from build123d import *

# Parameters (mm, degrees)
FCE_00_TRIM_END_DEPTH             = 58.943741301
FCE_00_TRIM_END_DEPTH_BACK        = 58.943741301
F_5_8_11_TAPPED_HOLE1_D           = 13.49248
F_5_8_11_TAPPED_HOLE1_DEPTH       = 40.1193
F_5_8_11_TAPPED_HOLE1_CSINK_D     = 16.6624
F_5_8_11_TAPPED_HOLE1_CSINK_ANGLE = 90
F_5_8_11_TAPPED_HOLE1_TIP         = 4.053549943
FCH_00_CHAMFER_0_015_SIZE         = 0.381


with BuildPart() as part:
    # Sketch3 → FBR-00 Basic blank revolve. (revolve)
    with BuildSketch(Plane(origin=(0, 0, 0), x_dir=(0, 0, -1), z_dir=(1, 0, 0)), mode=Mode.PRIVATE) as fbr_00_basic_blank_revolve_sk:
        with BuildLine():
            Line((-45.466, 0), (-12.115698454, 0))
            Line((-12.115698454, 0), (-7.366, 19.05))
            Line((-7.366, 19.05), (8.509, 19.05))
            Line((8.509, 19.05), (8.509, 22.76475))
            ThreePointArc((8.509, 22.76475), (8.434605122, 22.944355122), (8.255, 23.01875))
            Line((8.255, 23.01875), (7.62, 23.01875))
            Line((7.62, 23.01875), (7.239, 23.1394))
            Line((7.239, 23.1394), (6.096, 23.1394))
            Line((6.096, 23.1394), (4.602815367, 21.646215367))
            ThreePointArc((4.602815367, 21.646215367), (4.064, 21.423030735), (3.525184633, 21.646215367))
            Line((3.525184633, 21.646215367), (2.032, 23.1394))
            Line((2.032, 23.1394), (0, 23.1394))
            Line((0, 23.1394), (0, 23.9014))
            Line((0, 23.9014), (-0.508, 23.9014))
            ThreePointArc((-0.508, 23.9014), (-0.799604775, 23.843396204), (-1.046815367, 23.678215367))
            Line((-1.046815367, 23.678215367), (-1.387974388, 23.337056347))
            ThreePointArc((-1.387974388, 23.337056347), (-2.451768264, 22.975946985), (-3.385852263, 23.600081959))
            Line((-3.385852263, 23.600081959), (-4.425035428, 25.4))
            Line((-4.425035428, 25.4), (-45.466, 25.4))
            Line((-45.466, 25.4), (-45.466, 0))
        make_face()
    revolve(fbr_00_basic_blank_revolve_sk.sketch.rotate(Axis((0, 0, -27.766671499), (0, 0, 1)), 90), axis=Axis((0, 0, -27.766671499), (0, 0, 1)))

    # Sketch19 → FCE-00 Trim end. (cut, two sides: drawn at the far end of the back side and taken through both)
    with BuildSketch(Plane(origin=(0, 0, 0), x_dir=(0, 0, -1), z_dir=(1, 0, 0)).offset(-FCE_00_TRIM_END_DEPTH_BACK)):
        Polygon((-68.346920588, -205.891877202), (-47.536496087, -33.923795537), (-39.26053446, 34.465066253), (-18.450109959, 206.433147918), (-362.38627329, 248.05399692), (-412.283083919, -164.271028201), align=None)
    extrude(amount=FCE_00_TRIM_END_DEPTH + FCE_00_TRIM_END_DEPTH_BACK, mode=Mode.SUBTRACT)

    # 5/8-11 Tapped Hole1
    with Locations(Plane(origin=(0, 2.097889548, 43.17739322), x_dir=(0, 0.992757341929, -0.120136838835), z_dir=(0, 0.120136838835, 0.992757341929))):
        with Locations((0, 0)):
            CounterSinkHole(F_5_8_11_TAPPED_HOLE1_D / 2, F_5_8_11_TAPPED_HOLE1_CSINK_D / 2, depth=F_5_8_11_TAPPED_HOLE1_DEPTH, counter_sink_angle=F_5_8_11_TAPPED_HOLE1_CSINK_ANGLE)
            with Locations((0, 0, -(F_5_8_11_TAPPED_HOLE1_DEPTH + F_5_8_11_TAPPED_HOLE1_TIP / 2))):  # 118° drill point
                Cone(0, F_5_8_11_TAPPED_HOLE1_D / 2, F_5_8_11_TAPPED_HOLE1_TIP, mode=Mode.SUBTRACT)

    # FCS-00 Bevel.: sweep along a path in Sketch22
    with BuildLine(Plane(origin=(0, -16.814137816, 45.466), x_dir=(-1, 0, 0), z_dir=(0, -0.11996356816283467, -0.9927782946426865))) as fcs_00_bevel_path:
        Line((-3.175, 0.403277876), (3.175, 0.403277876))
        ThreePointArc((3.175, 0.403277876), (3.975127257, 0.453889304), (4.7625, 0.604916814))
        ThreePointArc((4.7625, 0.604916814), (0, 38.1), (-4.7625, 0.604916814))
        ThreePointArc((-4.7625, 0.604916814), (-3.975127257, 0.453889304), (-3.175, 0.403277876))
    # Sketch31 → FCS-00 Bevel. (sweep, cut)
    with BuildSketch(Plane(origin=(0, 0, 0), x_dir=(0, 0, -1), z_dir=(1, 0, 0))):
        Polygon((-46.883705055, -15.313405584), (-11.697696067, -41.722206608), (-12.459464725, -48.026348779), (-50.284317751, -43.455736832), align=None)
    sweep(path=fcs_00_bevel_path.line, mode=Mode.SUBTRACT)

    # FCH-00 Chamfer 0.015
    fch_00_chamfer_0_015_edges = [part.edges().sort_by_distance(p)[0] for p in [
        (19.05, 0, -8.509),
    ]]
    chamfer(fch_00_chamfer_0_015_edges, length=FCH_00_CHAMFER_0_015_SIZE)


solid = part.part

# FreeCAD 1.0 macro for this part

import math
import FreeCAD as App
import Part
import Sketcher

V = App.Vector
Q = App.Units.Quantity


def edges_at(feature, points):
    """Names of the edges that pass closest to the given points."""
    edges = feature.Shape.Edges
    near = lambda p: min(range(len(edges)), key=lambda i: edges[i].distToShape(Part.Vertex(*p))[0])
    return sorted({f"Edge{near(p) + 1}" for p in points})

doc = App.newDocument("Part")
body = doc.addObject("PartDesign::Body", "Body")

sketch1 = body.newObject("Sketcher::SketchObject", "Sketch")
sketch1.AttachmentSupport = (doc.getObject("YZ_Plane"), [""])
sketch1.MapMode = "FlatFace"
sketch1.addGeometry(Part.LineSegment(V(0, 45.466, 0), V(0, 12.115698, 0)), False)
sketch1.addGeometry(Part.LineSegment(V(0, 12.115698, 0), V(19.05, 7.366, 0)), False)
sketch1.addGeometry(Part.LineSegment(V(19.05, 7.366, 0), V(19.05, -8.509, 0)), False)
sketch1.addGeometry(Part.LineSegment(V(19.05, -8.509, 0), V(22.76475, -8.509, 0)), False)
sketch1.addGeometry(Part.ArcOfCircle(Part.Circle(V(22.76475, -8.255, 0), V(0, 0, 1), 0.254), math.radians(-90), math.radians(0)), False)
sketch1.addGeometry(Part.LineSegment(V(23.01875, -8.255, 0), V(23.01875, -7.62, 0)), False)
sketch1.addGeometry(Part.LineSegment(V(23.01875, -7.62, 0), V(23.1394, -7.239, 0)), False)
sketch1.addGeometry(Part.LineSegment(V(23.1394, -7.239, 0), V(23.1394, -6.096, 0)), False)
sketch1.addGeometry(Part.LineSegment(V(23.1394, -6.096, 0), V(21.646215, -4.602815, 0)), False)
sketch1.addGeometry(Part.ArcOfCircle(Part.Circle(V(22.185031, -4.064, 0), V(0, 0, 1), 0.762), math.radians(135), math.radians(225)), False)
sketch1.addGeometry(Part.LineSegment(V(21.646215, -3.525185, 0), V(23.1394, -2.032, 0)), False)
sketch1.addGeometry(Part.LineSegment(V(23.1394, -2.032, 0), V(23.1394, 0, 0)), False)
sketch1.addGeometry(Part.LineSegment(V(23.1394, 0, 0), V(23.9014, 0, 0)), False)
sketch1.addGeometry(Part.LineSegment(V(23.9014, 0, 0), V(23.9014, 0.508, 0)), False)
sketch1.addGeometry(Part.ArcOfCircle(Part.Circle(V(23.1394, 0.508, 0), V(0, 0, 1), 0.762), math.radians(0), math.radians(45)), False)
sketch1.addGeometry(Part.LineSegment(V(23.678215, 1.046815, 0), V(23.337056, 1.387974, 0)), False)
sketch1.addGeometry(Part.ArcOfCircle(Part.Circle(V(24.235082, 2.286, 0), V(0, 0, 1), 1.27), math.radians(120), math.radians(225)), False)
sketch1.addGeometry(Part.LineSegment(V(23.600082, 3.385852, 0), V(25.4, 4.425035, 0)), False)
sketch1.addGeometry(Part.LineSegment(V(25.4, 4.425035, 0), V(25.4, 45.466, 0)), False)
sketch1.addGeometry(Part.LineSegment(V(25.4, 45.466, 0), V(0, 45.466, 0)), False)
sketch1.addConstraint(Sketcher.Constraint("Coincident", 0, 2, 1, 1))
sketch1.addConstraint(Sketcher.Constraint("Coincident", 1, 2, 2, 1))
sketch1.addConstraint(Sketcher.Constraint("Coincident", 2, 2, 3, 1))
sketch1.addConstraint(Sketcher.Constraint("Tangent", 3, 2, 4, 1))
sketch1.addConstraint(Sketcher.Constraint("Tangent", 4, 2, 5, 1))
sketch1.addConstraint(Sketcher.Constraint("Coincident", 5, 2, 6, 1))
sketch1.addConstraint(Sketcher.Constraint("Coincident", 6, 2, 7, 1))
sketch1.addConstraint(Sketcher.Constraint("Coincident", 7, 2, 8, 1))
sketch1.addConstraint(Sketcher.Constraint("Tangent", 8, 2, 9, 2))
sketch1.addConstraint(Sketcher.Constraint("Tangent", 9, 1, 10, 1))
sketch1.addConstraint(Sketcher.Constraint("Coincident", 10, 2, 11, 1))
sketch1.addConstraint(Sketcher.Constraint("Coincident", 11, 2, 12, 1))
sketch1.addConstraint(Sketcher.Constraint("Coincident", 12, 2, 13, 1))
sketch1.addConstraint(Sketcher.Constraint("Tangent", 13, 2, 14, 1))
sketch1.addConstraint(Sketcher.Constraint("Tangent", 14, 2, 15, 1))
sketch1.addConstraint(Sketcher.Constraint("Tangent", 15, 2, 16, 2))
sketch1.addConstraint(Sketcher.Constraint("Tangent", 16, 1, 17, 1))
sketch1.addConstraint(Sketcher.Constraint("Coincident", 17, 2, 18, 1))
sketch1.addConstraint(Sketcher.Constraint("Coincident", 18, 2, 19, 1))
sketch1.addConstraint(Sketcher.Constraint("Coincident", 19, 2, 0, 1))
sketch1.addConstraint(Sketcher.Constraint("Vertical", 0))
sketch1.addConstraint(Sketcher.Constraint("Vertical", 2))
sketch1.addConstraint(Sketcher.Constraint("Horizontal", 3))
sketch1.addConstraint(Sketcher.Constraint("Vertical", 5))
sketch1.addConstraint(Sketcher.Constraint("Vertical", 7))
sketch1.addConstraint(Sketcher.Constraint("Vertical", 11))
sketch1.addConstraint(Sketcher.Constraint("Horizontal", 12))
sketch1.addConstraint(Sketcher.Constraint("Vertical", 13))
sketch1.addConstraint(Sketcher.Constraint("Vertical", 18))
sketch1.addConstraint(Sketcher.Constraint("Horizontal", 19))
sketch1.addConstraint(Sketcher.Constraint("Equal", 9, 14))
sketch1.addConstraint(Sketcher.Constraint("PointOnObject", 0, 2, -2))
sketch1.addConstraint(Sketcher.Constraint("PointOnObject", 11, 2, -1))
sketch1.addConstraint(Sketcher.Constraint("Perpendicular", 8, 10))
sketch1.addConstraint(Sketcher.Constraint("Perpendicular", 10, 15))
sketch1.addConstraint(Sketcher.Constraint("Vertical", 14, 3, 6, 2))
sketch1.addConstraint(Sketcher.Constraint("Vertical", 8, 2, 9, 1))
sketch1.addConstraint(Sketcher.Constraint("Vertical", 7, 2, 10, 2))
sketch1.addConstraint(Sketcher.Constraint("DistanceX", 19, 2, 19, 1, Q("1 in")))
sketch1.addConstraint(Sketcher.Constraint("Radius", 4, Q("0.01 in")))
sketch1.addConstraint(Sketcher.Constraint("Radius", 9, Q("0.03 in")))
sketch1.addConstraint(Sketcher.Constraint("Radius", 16, Q("0.05 in")))
sketch1.addConstraint(Sketcher.Constraint("Angle", 1, Q("-14 deg")))
sketch1.addConstraint(Sketcher.Constraint("Angle", 17, Q("30 deg")))
sketch1.addConstraint(Sketcher.Constraint("DistanceY", 11, 1, 11, 2, Q("0.08 in")))
sketch1.addConstraint(Sketcher.Constraint("DistanceY", 13, 1, 13, 2, Q("0.02 in")))
sketch1.addConstraint(Sketcher.Constraint("DistanceY", 5, 2, -1, 1, Q("0.3 in")))
sketch1.addConstraint(Sketcher.Constraint("DistanceY", 16, 3, 1, 2, Q("0.2 in")))
sketch1.addConstraint(Sketcher.Constraint("DistanceY", 1, 2, 18, 2, Q("1.5 in")))
sketch1.addConstraint(Sketcher.Constraint("DistanceY", 2, 2, 2, 1, Q("0.625 in")))
sketch1.addConstraint(Sketcher.Constraint("DistanceY", 5, 1, 5, 2, Q("0.025 in")))
sketch1.addConstraint(Sketcher.Constraint("DistanceY", 7, 1, 7, 2, Q("0.045 in")))
sketch1.addConstraint(Sketcher.Constraint("DistanceY", 9, 3, -1, 1, Q("0.16 in")))
sketch1.addConstraint(Sketcher.Constraint("DistanceX", -1, 1, 1, 2, Q("0.75 in")))
sketch1.addConstraint(Sketcher.Constraint("DistanceX", -1, 1, 14, 3, Q("0.911 in")))
sketch1.addConstraint(Sketcher.Constraint("DistanceX", -1, 1, 4, 2, Q("0.90625 in")))
revolution = body.newObject("PartDesign::Revolution", "Revolution")
revolution.Profile = sketch1
revolution.ReferenceAxis = (sketch1, ["V_Axis"])
revolution.Angle = 360

sketch2 = body.newObject("Sketcher::SketchObject", "Sketch001")
sketch2.AttachmentSupport = (doc.getObject("YZ_Plane"), [""])
sketch2.MapMode = "FlatFace"
sketch2.addGeometry(Part.LineSegment(V(-205.891877, 68.346921, 0), V(-33.923796, 47.536496, 0)), False)
sketch2.addGeometry(Part.LineSegment(V(-33.923796, 47.536496, 0), V(34.465066, 39.260534, 0)), False)
sketch2.addGeometry(Part.LineSegment(V(34.465066, 39.260534, 0), V(206.433148, 18.45011, 0)), False)
sketch2.addGeometry(Part.LineSegment(V(206.433148, 18.45011, 0), V(248.053997, 362.386273, 0)), False)
sketch2.addGeometry(Part.LineSegment(V(248.053997, 362.386273, 0), V(-164.271028, 412.283084, 0)), False)
sketch2.addGeometry(Part.LineSegment(V(-164.271028, 412.283084, 0), V(-205.891877, 68.346921, 0)), False)
sketch2.addConstraint(Sketcher.Constraint("Coincident", 0, 2, 1, 1))
sketch2.addConstraint(Sketcher.Constraint("Coincident", 1, 2, 2, 1))
sketch2.addConstraint(Sketcher.Constraint("Coincident", 2, 2, 3, 1))
sketch2.addConstraint(Sketcher.Constraint("Coincident", 3, 2, 4, 1))
sketch2.addConstraint(Sketcher.Constraint("Coincident", 4, 2, 5, 1))
sketch2.addConstraint(Sketcher.Constraint("Coincident", 5, 2, 0, 1))
sketch2.addConstraint(Sketcher.Constraint("Parallel", 0, 1))
sketch2.addConstraint(Sketcher.Constraint("Parallel", 1, 2))
sketch2.addConstraint(Sketcher.Constraint("Perpendicular", 2, 3))
sketch2.addConstraint(Sketcher.Constraint("Perpendicular", 3, 4))
sketch2.addConstraint(Sketcher.Constraint("Perpendicular", 4, 5))
sketch2.addConstraint(Sketcher.Constraint("Equal", 0, 2))
sketch2.addConstraint(Sketcher.Constraint("Angle", 0, Q("-6.9 deg")))
sketch2.addConstraint(Sketcher.Constraint("Distance", 3, Q("346.445349 mm")))
sketch2.addConstraint(Sketcher.Constraint("Distance", 4, Q("415.333141 mm")))
sketch2.addConstraint(Sketcher.Constraint("DistanceY", -1, 1, 2, 2, Q("18.45011 mm")))
sketch2.addConstraint(Sketcher.Constraint("DistanceX", 4, 2, -1, 1, Q("164.271028 mm")))
sketch2.addConstraint(Sketcher.Constraint("DistanceX", 0, 2, 1, 2, Q("68.388862 mm")))
pocket1 = body.newObject("PartDesign::Pocket", "Pocket")
pocket1.Profile = sketch2
pocket1.Type = "ThroughAll"
pocket1.Midplane = True

sketch3 = body.newObject("Sketcher::SketchObject", "Sketch002")
sketch3.Placement = App.Placement(V(0, 5.179905, 42.804428), App.Rotation(V(0, 0.992757342, -0.120136839), V(-1, 0, 0), V(0, 0.120136839, 0.992757342), "ZXY"))
sketch3.addGeometry(Part.Circle(V(-3.1045, 0, 0), V(0, 0, 1), 6.74624), False)
sketch3.addConstraint(Sketcher.Constraint("PointOnObject", 0, 3, -1))
sketch3.addConstraint(Sketcher.Constraint("Diameter", 0, Q("0.5312 in")))
sketch3.addConstraint(Sketcher.Constraint("DistanceX", 0, 3, -1, 1, Q("3.1045 mm")))
doc.recompute()
hole = body.newObject("PartDesign::Hole", "Hole")
hole.Profile = sketch3
hole.ThreadType = "None"
hole.Diameter = Q("0.5312 in")
hole.DepthType = "Dimension"
hole.Depth = Q("1.5795 in")
hole.DrillPoint = "Angled"
hole.DrillPointAngle = 118
hole.HoleCutType = "Countersink"
hole.HoleCutDiameter = Q("0.656 in")
hole.HoleCutCountersinkAngle = 90

sketch4 = body.newObject("Sketcher::SketchObject", "Sketch003")
sketch4.AttachmentSupport = (doc.getObject("YZ_Plane"), [""])
sketch4.MapMode = "FlatFace"
sketch4.addGeometry(Part.LineSegment(V(-41.722207, 11.697696, 0), V(-15.313406, 46.883705, 0)), False)
sketch4.addGeometry(Part.LineSegment(V(-15.313406, 46.883705, 0), V(-43.455737, 50.284318, 0)), False)
sketch4.addGeometry(Part.LineSegment(V(-43.455737, 50.284318, 0), V(-48.026349, 12.459465, 0)), False)
sketch4.addGeometry(Part.LineSegment(V(-48.026349, 12.459465, 0), V(-41.722207, 11.697696, 0)), False)
sketch4.addConstraint(Sketcher.Constraint("Coincident", 0, 2, 1, 1))
sketch4.addConstraint(Sketcher.Constraint("Coincident", 1, 2, 2, 1))
sketch4.addConstraint(Sketcher.Constraint("Coincident", 2, 2, 3, 1))
sketch4.addConstraint(Sketcher.Constraint("Coincident", 3, 2, 0, 1))
sketch4.addConstraint(Sketcher.Constraint("Perpendicular", 1, 2))
sketch4.addConstraint(Sketcher.Constraint("Perpendicular", 2, 3))
sketch4.addConstraint(Sketcher.Constraint("Distance", 2, Q("1.5 in")))
sketch4.addConstraint(Sketcher.Constraint("Distance", 3, Q("0.25 in")))
sketch4.addConstraint(Sketcher.Constraint("Angle", 0, Q("53.11 deg")))
sketch4.addConstraint(Sketcher.Constraint("Angle", 1, Q("173.11 deg")))
sketch4.addConstraint(Sketcher.Constraint("DistanceX", 2, 2, -1, 1, Q("48.026349 mm")))
sketch4.addConstraint(Sketcher.Constraint("DistanceY", -1, 1, 0, 2, Q("46.883705 mm")))

sketch5 = body.newObject("Sketcher::SketchObject", "Sketch004")
sketch5.Placement = App.Placement(V(0, 5.172898, 42.80917), App.Rotation(V(0, -0.992778295, 0.119963568), V(1.000000001, 0, 0), V(0, 0.119963568, 0.992778295), "ZXY"))
sketch5.addGeometry(Part.LineSegment(V(21.743697, 3.175, 0), V(21.743697, -3.175, 0)), False)
sketch5.addGeometry(Part.ArcOfCircle(Part.Circle(V(15.393697, -3.175, 0), V(0, 0, 1), 6.35), math.radians(-14.477512), math.radians(0)), False)
sketch5.addGeometry(Part.ArcOfCircle(Part.Circle(V(3.096975, 0, 0), V(0, 0, 1), 19.05), math.radians(14.477512), math.radians(345.522488)), False)
sketch5.addGeometry(Part.ArcOfCircle(Part.Circle(V(15.393697, 3.175, 0), V(0, 0, 1), 6.35), math.radians(0), math.radians(14.477512)), False)
sketch5.addConstraint(Sketcher.Constraint("Tangent", 0, 2, 1, 2))
sketch5.addConstraint(Sketcher.Constraint("Tangent", 1, 1, 2, 2))
sketch5.addConstraint(Sketcher.Constraint("Tangent", 2, 1, 3, 2))
sketch5.addConstraint(Sketcher.Constraint("Tangent", 3, 1, 0, 1))
sketch5.addConstraint(Sketcher.Constraint("Vertical", 0))
sketch5.addConstraint(Sketcher.Constraint("Equal", 1, 3))
sketch5.addConstraint(Sketcher.Constraint("PointOnObject", 2, 3, -1))
sketch5.addConstraint(Sketcher.Constraint("Radius", 1, Q("0.25 in")))
sketch5.addConstraint(Sketcher.Constraint("Radius", 2, Q("0.75 in")))
sketch5.addConstraint(Sketcher.Constraint("DistanceY", 0, 2, 0, 1, Q("0.25 in")))
sketch5.addConstraint(Sketcher.Constraint("DistanceX", -1, 1, 1, 3, Q("15.393697 mm")))
doc.recompute()

subtractivepipe = body.newObject("PartDesign::SubtractivePipe", "SubtractivePipe")
subtractivepipe.Profile = sketch4
subtractivepipe.Spine = (sketch5, ["Edge1", "Edge2", "Edge3", "Edge4"])
doc.recompute()

chamfer = body.newObject("PartDesign::Chamfer", "Chamfer")
chamfer.Base = (subtractivepipe, edges_at(subtractivepipe, [(19.05, 0, -8.509)]))
chamfer.Size = Q("0.015 in")

doc.recompute()
